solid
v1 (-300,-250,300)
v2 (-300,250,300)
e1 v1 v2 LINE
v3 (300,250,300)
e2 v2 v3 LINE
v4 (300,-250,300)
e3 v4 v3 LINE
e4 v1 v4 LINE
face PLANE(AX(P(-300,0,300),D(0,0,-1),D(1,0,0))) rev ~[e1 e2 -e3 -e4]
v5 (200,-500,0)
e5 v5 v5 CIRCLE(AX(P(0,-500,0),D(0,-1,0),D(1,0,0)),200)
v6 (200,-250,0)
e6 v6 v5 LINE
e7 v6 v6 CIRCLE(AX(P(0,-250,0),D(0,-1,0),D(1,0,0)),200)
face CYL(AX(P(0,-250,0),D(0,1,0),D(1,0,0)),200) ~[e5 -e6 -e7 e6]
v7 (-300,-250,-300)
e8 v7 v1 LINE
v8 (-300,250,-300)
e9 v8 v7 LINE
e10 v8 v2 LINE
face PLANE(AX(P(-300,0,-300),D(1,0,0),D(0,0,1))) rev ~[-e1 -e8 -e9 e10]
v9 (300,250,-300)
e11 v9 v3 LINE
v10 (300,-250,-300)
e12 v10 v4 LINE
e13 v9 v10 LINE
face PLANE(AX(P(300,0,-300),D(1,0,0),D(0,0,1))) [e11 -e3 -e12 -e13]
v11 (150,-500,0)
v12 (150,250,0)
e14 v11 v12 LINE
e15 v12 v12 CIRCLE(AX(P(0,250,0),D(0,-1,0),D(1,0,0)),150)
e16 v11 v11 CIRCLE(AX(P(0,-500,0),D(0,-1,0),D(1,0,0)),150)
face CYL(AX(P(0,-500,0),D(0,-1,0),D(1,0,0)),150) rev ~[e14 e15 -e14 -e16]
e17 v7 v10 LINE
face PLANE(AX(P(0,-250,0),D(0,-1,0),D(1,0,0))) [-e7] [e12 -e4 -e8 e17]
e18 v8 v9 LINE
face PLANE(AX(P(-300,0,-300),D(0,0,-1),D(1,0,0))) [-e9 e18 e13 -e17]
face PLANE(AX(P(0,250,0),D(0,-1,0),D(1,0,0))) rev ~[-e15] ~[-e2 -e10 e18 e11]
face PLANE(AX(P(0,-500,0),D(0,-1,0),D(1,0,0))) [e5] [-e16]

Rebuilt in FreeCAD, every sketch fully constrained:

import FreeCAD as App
import Part
import Sketcher
from FreeCAD import Vector
Q = App.Units.Quantity


def add_polygon(sketch, points):
    """Adds a closed chain of lines whose ends are joined by coincident constraints."""
    first, n = sketch.GeometryCount, len(points)
    for a, b in zip(points, points[1:] + points[:1]):
        sketch.addGeometry(Part.LineSegment(App.Vector(*a, 0), App.Vector(*b, 0)), False)
    for i in range(n):
        sketch.addConstraint(Sketcher.Constraint("Coincident", first + i, 2, first + (i + 1) % n, 1))

doc = App.newDocument("Part")
body = doc.addObject("PartDesign::Body", "Body")

# Sketch on XZ plane
sketch1 = body.newObject("Sketcher::SketchObject", "Sketch")
sketch1.AttachmentSupport = (doc.getObject("XZ_Plane"), [""])
sketch1.MapMode = "FlatFace"
add_polygon(sketch1, [(-300, 300), (-300, -300), (300, -300), (300, 300)])  # lines 0-3
sketch1.addConstraint([
    Sketcher.Constraint("Vertical", 0),
    Sketcher.Constraint("Horizontal", 1),
    Sketcher.Constraint("Vertical", 2),
    Sketcher.Constraint("Horizontal", 3),
    Sketcher.Constraint("Symmetric", 0, 2, 2, 2, -1, 1),
    Sketcher.Constraint("Equal", 3, 0),
    Sketcher.Constraint("DistanceX", 1, 1, 1, 2, Q("600 mm")),
])
pad1 = body.newObject("PartDesign::Pad", "Pad")
pad1.Profile = sketch1
pad1.Length = 500
pad1.Midplane = True

# Sketch on XZ plane
sketch2 = body.newObject("Sketcher::SketchObject", "Sketch001")
sketch2.AttachmentSupport = (doc.getObject("XZ_Plane"), [""])
sketch2.MapMode = "FlatFace"
sketch2.AttachmentOffset = App.Placement(Vector(0, 0, 250), App.Rotation())
sketch2.addGeometry([
    Part.Circle(Vector(0, 0, 0), Vector(0, 0, 1), 200),
    Part.Circle(Vector(0, 0, 0), Vector(0, 0, 1), 150),
], False)
sketch2.addConstraint([
    Sketcher.Constraint("Coincident", 0, 3, -1, 1),
    Sketcher.Constraint("Coincident", 1, 3, -1, 1),
    Sketcher.Constraint("Diameter", 0, Q("400 mm")),
    Sketcher.Constraint("Diameter", 1, Q("300 mm")),
])
pad2 = body.newObject("PartDesign::Pad", "Pad001")
pad2.Profile = sketch2
pad2.Length = 250

# Sketch on XZ plane
sketch3 = body.newObject("Sketcher::SketchObject", "Sketch002")
sketch3.AttachmentSupport = (doc.getObject("XZ_Plane"), [""])
sketch3.MapMode = "FlatFace"
sketch3.AttachmentOffset = App.Placement(Vector(0, 0, 500), App.Rotation())
sketch3.addGeometry(Part.Circle(Vector(0, 0, 0), Vector(0, 0, 1), 150), False)
sketch3.addConstraint([
    Sketcher.Constraint("Coincident", 0, 3, -1, 1),
    Sketcher.Constraint("Diameter", 0, Q("300 mm")),
])
pocket1 = body.newObject("PartDesign::Pocket", "Pocket")
pocket1.Profile = sketch3
pocket1.Length = 1016

doc.recompute()
